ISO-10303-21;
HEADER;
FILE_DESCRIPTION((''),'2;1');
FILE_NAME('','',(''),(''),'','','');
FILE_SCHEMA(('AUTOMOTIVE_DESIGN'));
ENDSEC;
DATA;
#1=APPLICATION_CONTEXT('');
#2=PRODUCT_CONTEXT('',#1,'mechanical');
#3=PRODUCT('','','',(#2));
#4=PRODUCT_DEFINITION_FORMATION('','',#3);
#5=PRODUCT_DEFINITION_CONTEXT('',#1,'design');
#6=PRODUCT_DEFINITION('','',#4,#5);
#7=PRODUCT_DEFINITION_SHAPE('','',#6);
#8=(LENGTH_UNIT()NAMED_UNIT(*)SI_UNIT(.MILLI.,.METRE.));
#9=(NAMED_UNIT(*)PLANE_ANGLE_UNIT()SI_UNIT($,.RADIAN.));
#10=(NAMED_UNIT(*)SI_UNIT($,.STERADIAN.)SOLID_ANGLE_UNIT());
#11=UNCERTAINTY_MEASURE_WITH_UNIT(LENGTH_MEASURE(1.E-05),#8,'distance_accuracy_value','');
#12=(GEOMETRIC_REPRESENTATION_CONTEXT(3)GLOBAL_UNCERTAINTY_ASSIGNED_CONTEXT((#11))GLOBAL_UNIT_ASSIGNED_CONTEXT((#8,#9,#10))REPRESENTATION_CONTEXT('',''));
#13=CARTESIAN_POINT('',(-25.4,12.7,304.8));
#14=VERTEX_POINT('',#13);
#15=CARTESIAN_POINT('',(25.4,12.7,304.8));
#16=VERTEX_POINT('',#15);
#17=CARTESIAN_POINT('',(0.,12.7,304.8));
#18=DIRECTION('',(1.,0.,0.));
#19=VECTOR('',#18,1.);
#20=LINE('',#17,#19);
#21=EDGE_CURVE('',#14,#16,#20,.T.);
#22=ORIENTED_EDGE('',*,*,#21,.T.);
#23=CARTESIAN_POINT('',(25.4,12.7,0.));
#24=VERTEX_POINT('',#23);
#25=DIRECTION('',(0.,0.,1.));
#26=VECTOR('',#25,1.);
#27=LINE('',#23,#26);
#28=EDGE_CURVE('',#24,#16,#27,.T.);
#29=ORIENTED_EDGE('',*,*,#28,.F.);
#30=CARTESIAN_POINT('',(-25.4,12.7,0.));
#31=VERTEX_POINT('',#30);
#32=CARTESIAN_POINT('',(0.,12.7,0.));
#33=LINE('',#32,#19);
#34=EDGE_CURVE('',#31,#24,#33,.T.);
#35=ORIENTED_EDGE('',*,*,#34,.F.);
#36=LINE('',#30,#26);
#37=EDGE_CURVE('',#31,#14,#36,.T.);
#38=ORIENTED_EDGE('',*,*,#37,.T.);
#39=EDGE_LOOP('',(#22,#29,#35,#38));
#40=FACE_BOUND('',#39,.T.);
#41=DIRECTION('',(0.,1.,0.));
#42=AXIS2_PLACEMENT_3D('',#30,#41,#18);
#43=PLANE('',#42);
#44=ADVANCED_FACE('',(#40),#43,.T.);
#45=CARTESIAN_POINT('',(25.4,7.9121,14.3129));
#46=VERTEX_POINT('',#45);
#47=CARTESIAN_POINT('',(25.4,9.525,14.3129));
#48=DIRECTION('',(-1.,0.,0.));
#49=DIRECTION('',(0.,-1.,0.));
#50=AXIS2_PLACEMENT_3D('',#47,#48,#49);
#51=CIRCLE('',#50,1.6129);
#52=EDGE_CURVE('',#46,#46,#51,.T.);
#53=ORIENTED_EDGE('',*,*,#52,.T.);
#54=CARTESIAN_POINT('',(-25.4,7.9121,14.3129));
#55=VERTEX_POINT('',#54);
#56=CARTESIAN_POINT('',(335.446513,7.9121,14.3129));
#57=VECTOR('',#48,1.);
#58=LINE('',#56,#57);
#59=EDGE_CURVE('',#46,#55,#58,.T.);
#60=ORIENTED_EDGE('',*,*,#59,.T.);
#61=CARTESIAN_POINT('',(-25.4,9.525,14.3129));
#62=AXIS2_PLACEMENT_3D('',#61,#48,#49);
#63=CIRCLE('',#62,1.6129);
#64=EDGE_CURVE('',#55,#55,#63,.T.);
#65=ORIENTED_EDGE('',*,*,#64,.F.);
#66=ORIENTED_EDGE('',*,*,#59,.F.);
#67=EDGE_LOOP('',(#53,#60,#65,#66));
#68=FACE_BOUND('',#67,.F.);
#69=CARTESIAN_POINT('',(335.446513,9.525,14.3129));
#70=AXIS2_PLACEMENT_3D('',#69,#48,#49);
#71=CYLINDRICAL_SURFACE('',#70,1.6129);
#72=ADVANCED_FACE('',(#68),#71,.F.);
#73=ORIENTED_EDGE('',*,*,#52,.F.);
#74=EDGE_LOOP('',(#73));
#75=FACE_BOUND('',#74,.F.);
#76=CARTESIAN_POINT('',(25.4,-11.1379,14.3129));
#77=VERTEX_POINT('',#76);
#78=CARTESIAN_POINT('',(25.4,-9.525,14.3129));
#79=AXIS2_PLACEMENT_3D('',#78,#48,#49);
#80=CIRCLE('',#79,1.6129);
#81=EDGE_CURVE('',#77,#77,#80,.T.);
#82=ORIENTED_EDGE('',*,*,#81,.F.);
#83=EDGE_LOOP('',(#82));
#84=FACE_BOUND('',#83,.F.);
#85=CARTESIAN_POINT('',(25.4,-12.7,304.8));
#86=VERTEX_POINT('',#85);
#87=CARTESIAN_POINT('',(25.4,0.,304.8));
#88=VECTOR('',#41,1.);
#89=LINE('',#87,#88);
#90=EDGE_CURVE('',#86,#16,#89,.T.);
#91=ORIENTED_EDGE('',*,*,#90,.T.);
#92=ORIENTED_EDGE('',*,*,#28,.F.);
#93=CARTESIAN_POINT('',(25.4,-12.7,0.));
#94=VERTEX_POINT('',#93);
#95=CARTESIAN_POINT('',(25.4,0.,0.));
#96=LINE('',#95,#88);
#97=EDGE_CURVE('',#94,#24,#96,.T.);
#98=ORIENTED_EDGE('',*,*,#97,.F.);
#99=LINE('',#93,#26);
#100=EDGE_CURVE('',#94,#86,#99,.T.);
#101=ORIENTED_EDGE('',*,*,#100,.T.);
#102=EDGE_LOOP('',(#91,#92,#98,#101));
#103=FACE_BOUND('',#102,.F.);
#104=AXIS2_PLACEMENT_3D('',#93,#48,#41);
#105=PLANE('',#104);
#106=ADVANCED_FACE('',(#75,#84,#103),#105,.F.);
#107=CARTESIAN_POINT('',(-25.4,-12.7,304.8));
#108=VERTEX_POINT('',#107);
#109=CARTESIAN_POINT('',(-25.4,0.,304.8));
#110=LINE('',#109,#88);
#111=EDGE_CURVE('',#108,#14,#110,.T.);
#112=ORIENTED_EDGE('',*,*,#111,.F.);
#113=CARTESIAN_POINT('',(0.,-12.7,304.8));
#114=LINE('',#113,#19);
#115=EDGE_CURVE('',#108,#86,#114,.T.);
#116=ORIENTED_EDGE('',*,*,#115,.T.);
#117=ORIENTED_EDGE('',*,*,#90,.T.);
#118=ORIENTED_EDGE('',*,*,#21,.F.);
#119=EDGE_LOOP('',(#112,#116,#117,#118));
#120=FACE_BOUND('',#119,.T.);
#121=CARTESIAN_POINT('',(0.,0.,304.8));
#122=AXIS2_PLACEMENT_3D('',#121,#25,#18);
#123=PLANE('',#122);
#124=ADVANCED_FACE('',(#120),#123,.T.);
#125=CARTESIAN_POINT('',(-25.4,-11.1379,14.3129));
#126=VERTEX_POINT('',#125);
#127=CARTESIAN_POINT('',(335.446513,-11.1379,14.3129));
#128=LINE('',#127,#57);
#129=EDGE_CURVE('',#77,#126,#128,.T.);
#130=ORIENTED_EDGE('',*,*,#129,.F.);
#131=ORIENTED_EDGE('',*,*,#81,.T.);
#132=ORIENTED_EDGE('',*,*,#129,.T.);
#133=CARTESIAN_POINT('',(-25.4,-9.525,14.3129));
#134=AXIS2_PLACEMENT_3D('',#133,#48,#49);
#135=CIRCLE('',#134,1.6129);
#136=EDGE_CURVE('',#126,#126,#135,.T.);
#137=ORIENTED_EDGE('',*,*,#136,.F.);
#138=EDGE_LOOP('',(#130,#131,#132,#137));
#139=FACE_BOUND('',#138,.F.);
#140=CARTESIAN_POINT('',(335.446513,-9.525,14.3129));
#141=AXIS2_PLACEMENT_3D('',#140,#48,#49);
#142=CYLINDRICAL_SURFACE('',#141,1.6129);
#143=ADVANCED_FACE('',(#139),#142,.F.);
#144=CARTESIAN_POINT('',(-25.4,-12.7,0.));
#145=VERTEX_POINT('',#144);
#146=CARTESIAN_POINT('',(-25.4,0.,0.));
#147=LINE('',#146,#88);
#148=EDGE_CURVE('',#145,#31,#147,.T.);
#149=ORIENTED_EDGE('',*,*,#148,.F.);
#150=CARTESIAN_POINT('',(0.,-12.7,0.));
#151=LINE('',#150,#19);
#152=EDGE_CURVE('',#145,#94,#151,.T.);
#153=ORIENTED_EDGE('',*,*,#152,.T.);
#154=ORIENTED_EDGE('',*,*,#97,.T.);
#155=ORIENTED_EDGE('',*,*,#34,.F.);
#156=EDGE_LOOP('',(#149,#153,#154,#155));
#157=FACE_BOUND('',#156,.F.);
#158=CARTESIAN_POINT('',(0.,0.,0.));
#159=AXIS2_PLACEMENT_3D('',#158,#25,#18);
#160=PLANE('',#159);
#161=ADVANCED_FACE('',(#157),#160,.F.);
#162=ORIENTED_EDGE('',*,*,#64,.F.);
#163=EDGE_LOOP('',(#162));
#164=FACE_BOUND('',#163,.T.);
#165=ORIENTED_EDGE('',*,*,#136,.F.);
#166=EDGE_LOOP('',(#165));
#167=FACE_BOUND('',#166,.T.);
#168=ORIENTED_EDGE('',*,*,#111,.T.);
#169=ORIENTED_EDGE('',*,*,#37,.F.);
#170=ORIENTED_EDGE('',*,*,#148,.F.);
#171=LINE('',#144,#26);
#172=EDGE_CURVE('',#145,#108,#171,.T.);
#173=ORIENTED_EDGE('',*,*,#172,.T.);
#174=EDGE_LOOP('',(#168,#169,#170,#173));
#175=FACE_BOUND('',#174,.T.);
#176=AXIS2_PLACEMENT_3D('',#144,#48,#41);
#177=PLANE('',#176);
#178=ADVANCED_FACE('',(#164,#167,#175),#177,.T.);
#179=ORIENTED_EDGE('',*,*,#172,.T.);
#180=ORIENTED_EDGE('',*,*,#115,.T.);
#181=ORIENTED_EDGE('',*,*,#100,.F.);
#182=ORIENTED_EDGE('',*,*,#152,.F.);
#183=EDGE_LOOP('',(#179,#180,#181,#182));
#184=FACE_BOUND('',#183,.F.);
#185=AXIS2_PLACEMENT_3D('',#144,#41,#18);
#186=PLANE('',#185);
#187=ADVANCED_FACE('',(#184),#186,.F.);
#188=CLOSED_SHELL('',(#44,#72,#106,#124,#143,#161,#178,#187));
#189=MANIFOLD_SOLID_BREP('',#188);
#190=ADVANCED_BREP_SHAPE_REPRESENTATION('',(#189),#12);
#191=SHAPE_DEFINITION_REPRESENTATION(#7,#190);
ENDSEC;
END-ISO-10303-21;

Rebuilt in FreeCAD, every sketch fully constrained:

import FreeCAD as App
import Part
import Sketcher

V = App.Vector
Q = App.Units.Quantity


def add_polygon(sketch, points):
    """Adds a closed chain of lines whose ends are joined by coincident constraints."""
    first, n = sketch.GeometryCount, len(points)
    for a, b in zip(points, points[1:] + points[:1]):
        sketch.addGeometry(Part.LineSegment(App.Vector(*a, 0), App.Vector(*b, 0)), False)
    for i in range(n):
        sketch.addConstraint(Sketcher.Constraint("Coincident", first + i, 2, first + (i + 1) % n, 1))

doc = App.newDocument("Part")
body = doc.addObject("PartDesign::Body", "Body")

# Sketch on XY plane
sketch1 = doc.addObject("Sketcher::SketchObject", "Sketch")
body.addObject(sketch1)
sketch1.AttachmentSupport = (doc.XY_Plane, [""])
sketch1.MapMode = "FlatFace"
add_polygon(sketch1, [(-25, 13), (-25, -13), (25, -13), (25, 13)])  # lines 0-3
sketch1.addConstraint([
    Sketcher.Constraint("Vertical", 0),
    Sketcher.Constraint("Horizontal", 1),
    Sketcher.Constraint("Vertical", 2),
    Sketcher.Constraint("Horizontal", 3),
    Sketcher.Constraint("Symmetric", 0, 2, 2, 2, -1, 1),
    Sketcher.Constraint("DistanceX", 1, 1, 1, 2, Q("2 in")),
    Sketcher.Constraint("DistanceY", 0, 2, 0, 1, Q("1 in")),
])
pad1 = doc.addObject("PartDesign::Pad", "Pad")
body.addObject(pad1)
pad1.Profile = sketch1
pad1.Length = Q("12 in")

# Sketch on YZ plane
sketch2 = doc.addObject("Sketcher::SketchObject", "Sketch001")
body.addObject(sketch2)
sketch2.AttachmentSupport = (doc.YZ_Plane, [""])
sketch2.MapMode = "FlatFace"
sketch2.AttachmentOffset = App.Placement(V(0, 0, 1 * 25.4), App.Rotation())
sketch2.addGeometry([
    Part.Circle(V(9.5, 14.3, 0), V(0, 0, 1), 1.6),
    Part.Circle(V(-9.5, 14.3, 0), V(0, 0, 1), 1.6),
], False)
sketch2.addConstraint([
    Sketcher.Constraint("Equal", 0, 1),
    Sketcher.Constraint("Symmetric", 0, 3, 1, 3, -2),
    Sketcher.Constraint("Diameter", 0, Q("0.127 in")),
    Sketcher.Constraint("DistanceX", 1, 3, 0, 3, Q("0.75 in")),
    Sketcher.Constraint("DistanceY", -1, 1, 0, 3, Q("0.5635 in")),
])
doc.recompute()
hole = doc.addObject("PartDesign::Hole", "Hole")
body.addObject(hole)
hole.Profile = sketch2
hole.ThreadType = "None"
hole.Diameter = Q("0.127 in")
hole.DepthType = "ThroughAll"

doc.recompute()
